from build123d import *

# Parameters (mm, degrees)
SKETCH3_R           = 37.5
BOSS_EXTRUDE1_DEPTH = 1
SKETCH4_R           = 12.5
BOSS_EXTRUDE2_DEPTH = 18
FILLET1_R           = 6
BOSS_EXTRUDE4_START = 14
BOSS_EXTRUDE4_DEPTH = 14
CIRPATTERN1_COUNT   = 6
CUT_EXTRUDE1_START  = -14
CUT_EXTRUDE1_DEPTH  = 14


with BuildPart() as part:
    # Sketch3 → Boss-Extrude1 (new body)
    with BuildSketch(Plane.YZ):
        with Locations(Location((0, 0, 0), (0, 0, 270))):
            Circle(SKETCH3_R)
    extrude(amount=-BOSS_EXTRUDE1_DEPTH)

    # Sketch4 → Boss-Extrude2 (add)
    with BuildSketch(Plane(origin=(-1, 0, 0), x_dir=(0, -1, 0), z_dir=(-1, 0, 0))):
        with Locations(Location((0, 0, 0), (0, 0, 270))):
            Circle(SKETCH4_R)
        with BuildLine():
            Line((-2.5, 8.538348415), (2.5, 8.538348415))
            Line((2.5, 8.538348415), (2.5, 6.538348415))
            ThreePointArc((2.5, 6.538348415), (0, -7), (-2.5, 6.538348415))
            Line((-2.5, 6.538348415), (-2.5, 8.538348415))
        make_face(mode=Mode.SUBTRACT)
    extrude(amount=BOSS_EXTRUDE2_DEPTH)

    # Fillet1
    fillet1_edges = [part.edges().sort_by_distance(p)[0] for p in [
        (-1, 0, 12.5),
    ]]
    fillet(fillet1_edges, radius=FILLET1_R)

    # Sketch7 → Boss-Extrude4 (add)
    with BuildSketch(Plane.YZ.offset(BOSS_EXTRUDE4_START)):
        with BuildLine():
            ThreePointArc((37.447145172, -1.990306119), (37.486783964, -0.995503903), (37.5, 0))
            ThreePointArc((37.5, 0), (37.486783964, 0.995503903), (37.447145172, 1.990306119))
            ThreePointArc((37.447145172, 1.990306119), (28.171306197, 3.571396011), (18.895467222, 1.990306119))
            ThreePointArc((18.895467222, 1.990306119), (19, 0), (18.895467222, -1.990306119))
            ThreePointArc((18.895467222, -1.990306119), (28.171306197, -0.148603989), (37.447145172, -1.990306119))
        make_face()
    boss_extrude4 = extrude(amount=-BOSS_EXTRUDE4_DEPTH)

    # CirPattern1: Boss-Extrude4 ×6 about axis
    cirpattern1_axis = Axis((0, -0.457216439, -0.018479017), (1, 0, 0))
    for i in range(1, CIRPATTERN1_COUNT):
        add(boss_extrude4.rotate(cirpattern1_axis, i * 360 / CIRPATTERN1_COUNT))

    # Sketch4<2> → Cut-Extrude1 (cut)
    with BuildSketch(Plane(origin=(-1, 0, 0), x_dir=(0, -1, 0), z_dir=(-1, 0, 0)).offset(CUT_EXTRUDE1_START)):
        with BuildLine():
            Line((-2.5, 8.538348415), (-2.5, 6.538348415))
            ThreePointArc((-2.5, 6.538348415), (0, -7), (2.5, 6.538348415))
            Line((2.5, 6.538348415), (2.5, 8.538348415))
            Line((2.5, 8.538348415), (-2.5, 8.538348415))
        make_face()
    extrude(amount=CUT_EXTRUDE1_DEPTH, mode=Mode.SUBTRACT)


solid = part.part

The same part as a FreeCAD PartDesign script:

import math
import FreeCAD as App
import Part
import Sketcher
Q = App.Units.Quantity


def edges_at(feature, points):
    """Names of the edges that pass closest to the given points."""
    edges = feature.Shape.Edges
    near = lambda p: min(range(len(edges)), key=lambda i: edges[i].distToShape(Part.Vertex(*p))[0])
    return sorted({f"Edge{near(p) + 1}" for p in points})

doc = App.newDocument("Part")
body = doc.addObject("PartDesign::Body", "Body")

# Sketch on YZ plane
sketch1 = body.newObject("Sketcher::SketchObject", "Sketch")
sketch1.AttachmentSupport = (doc.getObject("YZ_Plane"), [""])
sketch1.MapMode = "FlatFace"
sketch1.addGeometry(Part.Circle(App.Vector(0, 0, 0), App.Vector(0, 0, 1), 38), False)
sketch1.addConstraint(Sketcher.Constraint("Coincident", 0, 3, -1, 1))
sketch1.addConstraint(Sketcher.Constraint("Diameter", 0, Q("75 mm")))
pad1 = body.newObject("PartDesign::Pad", "Pad")
pad1.Profile = sketch1
pad1.Length = 1
pad1.Reversed = True

# Sketch on YZ plane
sketch2 = body.newObject("Sketcher::SketchObject", "Sketch001")
sketch2.AttachmentSupport = (doc.getObject("YZ_Plane"), [""])
sketch2.MapMode = "FlatFace"
sketch2.AttachmentOffset = App.Placement(App.Vector(0, 0, -1), App.Rotation())
sketch2.addGeometry(Part.Circle(App.Vector(0, 0, 0), App.Vector(0, 0, 1), 12.5), False)
sketch2.addGeometry(Part.LineSegment(App.Vector(2.5, 6.5, 0), App.Vector(2.5, 8.5, 0)), False)
sketch2.addGeometry(Part.LineSegment(App.Vector(2.5, 8.5, 0), App.Vector(-2.5, 8.5, 0)), False)
sketch2.addGeometry(Part.LineSegment(App.Vector(-2.5, 8.5, 0), App.Vector(-2.5, 6.5, 0)), False)
sketch2.addGeometry(Part.ArcOfCircle(Part.Circle(App.Vector(0, 0, 0), App.Vector(0, 0, 1), 7), math.radians(111), math.radians(429)), False)
sketch2.addConstraint(Sketcher.Constraint("Coincident", 1, 2, 2, 1))
sketch2.addConstraint(Sketcher.Constraint("Coincident", 2, 2, 3, 1))
sketch2.addConstraint(Sketcher.Constraint("Coincident", 3, 2, 4, 1))
sketch2.addConstraint(Sketcher.Constraint("Coincident", 4, 2, 1, 1))
sketch2.addConstraint(Sketcher.Constraint("Vertical", 1))
sketch2.addConstraint(Sketcher.Constraint("Horizontal", 2))
sketch2.addConstraint(Sketcher.Constraint("Vertical", 3))
sketch2.addConstraint(Sketcher.Constraint("Coincident", 0, 3, -1, 1))
sketch2.addConstraint(Sketcher.Constraint("Coincident", 4, 3, -1, 1))
sketch2.addConstraint(Sketcher.Constraint("Horizontal", 3, 2, 4, 2))
sketch2.addConstraint(Sketcher.Constraint("Diameter", 0, Q("25 mm")))
sketch2.addConstraint(Sketcher.Constraint("Radius", 4, Q("7 mm")))
sketch2.addConstraint(Sketcher.Constraint("DistanceX", 2, 2, 2, 1, Q("5 mm")))
sketch2.addConstraint(Sketcher.Constraint("DistanceY", 1, 1, 1, 2, Q("2 mm")))
pad2 = body.newObject("PartDesign::Pad", "Pad001")
pad2.Profile = sketch2
pad2.Length = 18
pad2.Reversed = True
doc.recompute()

fillet = body.newObject("PartDesign::Fillet", "Fillet")
fillet.Base = (pad2, edges_at(pad2, [(-1, 0, 12.5)]))
fillet.Radius = 6

# Sketch on YZ plane
sketch3 = body.newObject("Sketcher::SketchObject", "Sketch002")
sketch3.AttachmentSupport = (doc.getObject("YZ_Plane"), [""])
sketch3.MapMode = "FlatFace"
sketch3.AttachmentOffset = App.Placement(App.Vector(0, 0, 14), App.Rotation())
sketch3.addGeometry(Part.ArcOfCircle(Part.Circle(App.Vector(0, 0, 0), App.Vector(0, 0, 1), 37.5), math.radians(-3.04), math.radians(0)), False)
sketch3.addGeometry(Part.ArcOfCircle(Part.Circle(App.Vector(0, 0, 0), App.Vector(0, 0, 1), 37.5), math.radians(0), math.radians(3.04)), False)
sketch3.addGeometry(Part.ArcOfCircle(Part.Circle(App.Vector(28.2, -24.4, 0), App.Vector(0, 0, 1), 28), math.radians(71), math.radians(109)), False)
sketch3.addGeometry(Part.ArcOfCircle(Part.Circle(App.Vector(0, 0, 0), App.Vector(0, 0, 1), 19), math.radians(-6.01), math.radians(6.01)), False)
sketch3.addGeometry(Part.ArcOfCircle(Part.Circle(App.Vector(28.2, -24.4, 0), App.Vector(0, 0, 1), 24.3), math.radians(68), math.radians(112)), False)
sketch3.addConstraint(Sketcher.Constraint("Tangent", 0, 2, 1, 1))
sketch3.addConstraint(Sketcher.Constraint("Coincident", 1, 2, 2, 1))
sketch3.addConstraint(Sketcher.Constraint("Coincident", 2, 2, 3, 2))
sketch3.addConstraint(Sketcher.Constraint("Coincident", 3, 1, 4, 2))
sketch3.addConstraint(Sketcher.Constraint("Coincident", 4, 1, 0, 1))
sketch3.addConstraint(Sketcher.Constraint("Coincident", 0, 3, -1, 1))
sketch3.addConstraint(Sketcher.Constraint("Coincident", 3, 3, -1, 1))
sketch3.addConstraint(Sketcher.Constraint("Coincident", 4, 3, 2, 3))
sketch3.addConstraint(Sketcher.Constraint("Equal", 0, 1))
sketch3.addConstraint(Sketcher.Constraint("PointOnObject", 0, 2, -1))
sketch3.addConstraint(Sketcher.Constraint("Horizontal", 1, 2, 2, 2))
sketch3.addConstraint(Sketcher.Constraint("Horizontal", 3, 1, 4, 1))
sketch3.addConstraint(Sketcher.Constraint("Radius", 2, Q("28 mm")))
sketch3.addConstraint(Sketcher.Constraint("Radius", 3, Q("19 mm")))
sketch3.addConstraint(Sketcher.Constraint("Radius", 0, Q("37.5 mm")))
sketch3.addConstraint(Sketcher.Constraint("Radius", 4, Q("24.28 mm")))
pad3 = body.newObject("PartDesign::Pad", "Pad002")
pad3.Profile = sketch3
pad3.Length = 14
pad3.Reversed = True
doc.recompute()

datumline = body.newObject("PartDesign::Line", "DatumLine")
datumline.Placement = App.Placement(App.Vector(0, -0.457216, -0.018479), App.Rotation(App.Vector(0, 0, 1), App.Vector(1, 0, 0)))
polarpattern = body.newObject("PartDesign::PolarPattern", "PolarPattern")
polarpattern.Originals = [pad3]
polarpattern.Axis = (datumline, [""])
polarpattern.Angle = 360
polarpattern.Occurrences = 6
body.Tip = polarpattern

# Sketch on YZ plane
sketch4 = body.newObject("Sketcher::SketchObject", "Sketch003")
sketch4.AttachmentSupport = (doc.getObject("YZ_Plane"), [""])
sketch4.MapMode = "FlatFace"
sketch4.AttachmentOffset = App.Placement(App.Vector(0, 0, 13), App.Rotation())
sketch4.addGeometry(Part.LineSegment(App.Vector(2.5, 8.5, 0), App.Vector(2.5, 6.5, 0)), False)
sketch4.addGeometry(Part.ArcOfCircle(Part.Circle(App.Vector(0, 0, 0), App.Vector(0, 0, 1), 7), math.radians(111), math.radians(429)), False)
sketch4.addGeometry(Part.LineSegment(App.Vector(-2.5, 6.5, 0), App.Vector(-2.5, 8.5, 0)), False)
sketch4.addGeometry(Part.LineSegment(App.Vector(-2.5, 8.5, 0), App.Vector(2.5, 8.5, 0)), False)
sketch4.addConstraint(Sketcher.Constraint("Coincident", 0, 2, 1, 2))
sketch4.addConstraint(Sketcher.Constraint("Coincident", 1, 1, 2, 1))
sketch4.addConstraint(Sketcher.Constraint("Coincident", 2, 2, 3, 1))
sketch4.addConstraint(Sketcher.Constraint("Coincident", 3, 2, 0, 1))
sketch4.addConstraint(Sketcher.Constraint("Vertical", 0))
sketch4.addConstraint(Sketcher.Constraint("Vertical", 2))
sketch4.addConstraint(Sketcher.Constraint("Horizontal", 3))
sketch4.addConstraint(Sketcher.Constraint("Coincident", 1, 3, -1, 1))
sketch4.addConstraint(Sketcher.Constraint("Horizontal", 0, 2, 1, 1))
sketch4.addConstraint(Sketcher.Constraint("Radius", 1, Q("7 mm")))
sketch4.addConstraint(Sketcher.Constraint("DistanceX", 3, 1, 3, 2, Q("5 mm")))
sketch4.addConstraint(Sketcher.Constraint("DistanceY", 0, 2, 0, 1, Q("2 mm")))
pocket1 = body.newObject("PartDesign::Pocket", "Pocket")
pocket1.Profile = sketch4
pocket1.Length = 14

doc.recompute()
